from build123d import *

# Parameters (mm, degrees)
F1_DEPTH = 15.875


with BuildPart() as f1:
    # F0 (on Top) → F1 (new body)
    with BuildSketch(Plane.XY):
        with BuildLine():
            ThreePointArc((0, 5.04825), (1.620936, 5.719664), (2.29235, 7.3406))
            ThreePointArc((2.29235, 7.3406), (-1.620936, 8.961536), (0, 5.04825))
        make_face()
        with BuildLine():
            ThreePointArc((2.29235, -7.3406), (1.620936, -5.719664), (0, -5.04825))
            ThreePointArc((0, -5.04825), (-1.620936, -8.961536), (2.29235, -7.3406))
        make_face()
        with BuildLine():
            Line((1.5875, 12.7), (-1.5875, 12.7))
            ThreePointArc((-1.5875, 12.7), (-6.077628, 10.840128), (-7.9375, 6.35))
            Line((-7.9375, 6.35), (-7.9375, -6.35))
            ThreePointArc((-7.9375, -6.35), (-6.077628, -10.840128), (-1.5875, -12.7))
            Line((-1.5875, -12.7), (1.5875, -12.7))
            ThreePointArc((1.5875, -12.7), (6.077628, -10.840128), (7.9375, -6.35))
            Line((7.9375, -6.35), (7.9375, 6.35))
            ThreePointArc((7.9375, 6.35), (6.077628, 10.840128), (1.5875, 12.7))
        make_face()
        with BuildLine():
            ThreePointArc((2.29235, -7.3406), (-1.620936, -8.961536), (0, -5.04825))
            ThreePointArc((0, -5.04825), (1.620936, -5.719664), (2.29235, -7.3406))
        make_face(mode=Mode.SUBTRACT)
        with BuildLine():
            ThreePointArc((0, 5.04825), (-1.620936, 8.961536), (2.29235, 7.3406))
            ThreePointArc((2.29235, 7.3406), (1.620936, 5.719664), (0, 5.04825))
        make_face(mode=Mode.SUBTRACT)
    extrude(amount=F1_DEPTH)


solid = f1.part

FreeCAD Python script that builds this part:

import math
import FreeCAD as App
import Part
import Sketcher
Q = App.Units.Quantity

doc = App.newDocument("Part")
params = doc.addObject("Spreadsheet::Sheet", "Params")
for row, (alias, value) in enumerate([
    ("sketch1_radius", "0.25 in"),
    ("sketch1_height", "0.5 in"),
    ("sketch1_width", "0.125 in"),
    ("pad1_length", "0.625 in"),
], start=1):
    params.set(f"A{row}", alias)
    params.set(f"B{row}", "=" + value)
    params.setAlias(f"B{row}", alias)

body = doc.addObject("PartDesign::Body", "Body")

# Sketch on XY plane
sketch1 = doc.addObject("Sketcher::SketchObject", "Sketch")
body.addObject(sketch1)
sketch1.AttachmentSupport = (doc.XY_Plane, [""])
sketch1.MapMode = "FlatFace"
sketch1.addGeometry([
    Part.LineSegment(App.Vector(1.6, 12.7, 0), App.Vector(-1.6, 12.7, 0)),  # 0
    Part.ArcOfCircle(Part.Circle(App.Vector(-1.6, 6.3, 0), App.Vector(0, 0, 1), 6.4), math.radians(90), math.radians(180)),  # 1
    Part.LineSegment(App.Vector(-7.9, 6.3, 0), App.Vector(-7.9, -6.3, 0)),  # 2
    Part.ArcOfCircle(Part.Circle(App.Vector(-1.6, -6.3, 0), App.Vector(0, 0, 1), 6.4), math.radians(-180), math.radians(-90)),  # 3
    Part.LineSegment(App.Vector(-1.6, -12.7, 0), App.Vector(1.6, -12.7, 0)),  # 4
    Part.ArcOfCircle(Part.Circle(App.Vector(1.6, -6.3, 0), App.Vector(0, 0, 1), 6.4), math.radians(-90), math.radians(0)),  # 5
    Part.LineSegment(App.Vector(7.9, -6.3, 0), App.Vector(7.9, 6.3, 0)),  # 6
    Part.ArcOfCircle(Part.Circle(App.Vector(1.6, 6.3, 0), App.Vector(0, 0, 1), 6.4), math.radians(0), math.radians(90)),  # 7
    Part.ArcOfCircle(Part.Circle(App.Vector(0, -7.3, 0), App.Vector(0, 0, 1), 2.3), math.radians(0), math.radians(90)),  # 8
    Part.ArcOfCircle(Part.Circle(App.Vector(0, -7.3, 0), App.Vector(0, 0, 1), 2.3), math.radians(90), math.radians(360)),  # 9
    Part.ArcOfCircle(Part.Circle(App.Vector(0, 7.3, 0), App.Vector(0, 0, 1), 2.3), math.radians(-90), math.radians(0)),  # 10
    Part.ArcOfCircle(Part.Circle(App.Vector(0, 7.3, 0), App.Vector(0, 0, 1), 2.3), math.radians(0), math.radians(270)),  # 11
], False)
sketch1.addConstraint([
    Sketcher.Constraint("Tangent", 0, 2, 1, 1),
    Sketcher.Constraint("Tangent", 1, 2, 2, 1),
    Sketcher.Constraint("Tangent", 2, 2, 3, 1),
    Sketcher.Constraint("Tangent", 3, 2, 4, 1),
    Sketcher.Constraint("Tangent", 4, 2, 5, 1),
    Sketcher.Constraint("Tangent", 5, 2, 6, 1),
    Sketcher.Constraint("Tangent", 6, 2, 7, 1),
    Sketcher.Constraint("Tangent", 7, 2, 0, 1),
    Sketcher.Constraint("Tangent", 8, 1, 9, 2),
    Sketcher.Constraint("Coincident", 9, 1, 8, 2),
    Sketcher.Constraint("Tangent", 10, 1, 11, 2),
    Sketcher.Constraint("Coincident", 11, 1, 10, 2),
    Sketcher.Constraint("Horizontal", 0),
    Sketcher.Constraint("Vertical", 2),
    Sketcher.Constraint("Horizontal", 4),
    Sketcher.Constraint("Vertical", 6),
    Sketcher.Constraint("Equal", 1, 3),
    Sketcher.Constraint("Equal", 3, 5),
    Sketcher.Constraint("Equal", 5, 7),
    Sketcher.Constraint("Equal", 9, 10),
    Sketcher.Constraint("Symmetric", 1, 3, 5, 3, -1, 1),
    Sketcher.Constraint("Symmetric", 8, 3, 10, 3, -1, 1),
    Sketcher.Constraint("Symmetric", 8, 1, 11, 1, -1),
    Sketcher.Constraint("PointOnObject", 9, 1, -2),
    Sketcher.Constraint("PointOnObject", 10, 1, -2),
    Sketcher.Constraint("Horizontal", 9, 3, 8, 1),
    Sketcher.Constraint("Radius", 1, Q("0.25 in")),
    Sketcher.Constraint("DistanceY", 2, 2, 2, 1, Q("0.5 in")),
    Sketcher.Constraint("DistanceX", 0, 2, 0, 1, Q("0.125 in")),
    Sketcher.Constraint("DistanceY", 8, 3, -1, 1, Q("0.289 in")),
    Sketcher.Constraint("Radius", 8, 2.292351),
])
sketch1.setExpression("Constraints[26]", "Params.sketch1_radius")
sketch1.setExpression("Constraints[27]", "Params.sketch1_height")
sketch1.setExpression("Constraints[28]", "Params.sketch1_width")
pad1 = doc.addObject("PartDesign::Pad", "Pad")
body.addObject(pad1)
pad1.Profile = sketch1
pad1.setExpression("Length", "Params.pad1_length")

doc.recompute()
